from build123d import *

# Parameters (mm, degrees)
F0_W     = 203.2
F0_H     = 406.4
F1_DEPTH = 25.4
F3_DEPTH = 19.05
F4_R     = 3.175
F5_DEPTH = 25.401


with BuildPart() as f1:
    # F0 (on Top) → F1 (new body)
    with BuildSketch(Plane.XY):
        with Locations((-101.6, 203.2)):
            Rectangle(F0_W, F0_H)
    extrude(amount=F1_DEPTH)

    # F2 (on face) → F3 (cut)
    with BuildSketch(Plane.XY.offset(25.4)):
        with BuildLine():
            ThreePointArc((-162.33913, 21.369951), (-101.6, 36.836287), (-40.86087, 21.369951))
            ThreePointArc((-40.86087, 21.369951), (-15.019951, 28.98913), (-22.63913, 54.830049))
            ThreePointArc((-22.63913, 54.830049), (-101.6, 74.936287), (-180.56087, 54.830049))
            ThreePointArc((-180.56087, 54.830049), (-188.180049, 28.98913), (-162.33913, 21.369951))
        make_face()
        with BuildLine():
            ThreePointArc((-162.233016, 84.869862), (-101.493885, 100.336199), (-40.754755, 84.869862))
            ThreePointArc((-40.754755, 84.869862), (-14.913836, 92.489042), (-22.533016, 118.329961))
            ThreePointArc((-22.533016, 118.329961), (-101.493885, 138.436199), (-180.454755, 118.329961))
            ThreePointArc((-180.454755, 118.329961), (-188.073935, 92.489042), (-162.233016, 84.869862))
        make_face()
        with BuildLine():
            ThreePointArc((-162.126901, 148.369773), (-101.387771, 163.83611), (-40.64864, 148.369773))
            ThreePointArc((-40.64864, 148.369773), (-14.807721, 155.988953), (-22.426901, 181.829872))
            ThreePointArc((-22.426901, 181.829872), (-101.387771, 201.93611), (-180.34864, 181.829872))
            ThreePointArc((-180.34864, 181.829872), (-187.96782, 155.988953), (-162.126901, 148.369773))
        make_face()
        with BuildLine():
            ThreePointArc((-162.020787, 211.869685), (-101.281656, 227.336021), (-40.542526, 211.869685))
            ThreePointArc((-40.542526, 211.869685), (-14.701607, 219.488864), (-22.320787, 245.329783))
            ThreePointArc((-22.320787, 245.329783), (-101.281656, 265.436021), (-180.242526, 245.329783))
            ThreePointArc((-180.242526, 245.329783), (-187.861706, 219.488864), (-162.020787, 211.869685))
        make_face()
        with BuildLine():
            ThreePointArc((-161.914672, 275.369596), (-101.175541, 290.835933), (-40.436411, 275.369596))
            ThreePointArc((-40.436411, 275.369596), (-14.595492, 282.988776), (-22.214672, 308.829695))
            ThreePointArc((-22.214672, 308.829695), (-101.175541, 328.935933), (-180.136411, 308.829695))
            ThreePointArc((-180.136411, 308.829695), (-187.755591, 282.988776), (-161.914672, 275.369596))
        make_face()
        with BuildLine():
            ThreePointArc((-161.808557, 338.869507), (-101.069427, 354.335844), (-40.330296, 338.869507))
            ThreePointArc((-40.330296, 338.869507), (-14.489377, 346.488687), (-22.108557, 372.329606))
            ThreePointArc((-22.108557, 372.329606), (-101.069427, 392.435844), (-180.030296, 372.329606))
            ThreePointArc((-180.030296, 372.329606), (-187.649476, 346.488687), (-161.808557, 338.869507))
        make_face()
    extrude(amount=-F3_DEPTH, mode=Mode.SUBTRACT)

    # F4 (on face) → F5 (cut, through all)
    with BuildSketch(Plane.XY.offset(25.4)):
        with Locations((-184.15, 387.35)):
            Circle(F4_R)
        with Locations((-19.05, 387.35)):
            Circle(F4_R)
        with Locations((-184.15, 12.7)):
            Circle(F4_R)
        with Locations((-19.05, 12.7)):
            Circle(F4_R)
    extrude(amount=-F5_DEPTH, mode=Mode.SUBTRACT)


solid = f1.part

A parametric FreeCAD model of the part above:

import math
import FreeCAD as App
import Part
import Sketcher

V = App.Vector
Q = App.Units.Quantity

doc = App.newDocument("Part")
body = doc.addObject("PartDesign::Body", "Body")

# Sketch on XY plane
sketch1 = body.newObject("Sketcher::SketchObject", "Sketch")
sketch1.AttachmentSupport = (doc.getObject("XY_Plane"), [""])
sketch1.MapMode = "FlatFace"
sketch1.addGeometry(Part.LineSegment(V(-203, 406, 0), V(-203, 0, 0)), False)
sketch1.addGeometry(Part.LineSegment(V(-203, 0, 0), V(0, 0, 0)), False)
sketch1.addGeometry(Part.LineSegment(V(0, 0, 0), V(0, 406, 0)), False)
sketch1.addGeometry(Part.LineSegment(V(0, 406, 0), V(-203, 406, 0)), False)
sketch1.addConstraint(Sketcher.Constraint("Coincident", 0, 2, 1, 1))
sketch1.addConstraint(Sketcher.Constraint("Coincident", 1, 2, 2, 1))
sketch1.addConstraint(Sketcher.Constraint("Coincident", 2, 2, 3, 1))
sketch1.addConstraint(Sketcher.Constraint("Coincident", 3, 2, 0, 1))
sketch1.addConstraint(Sketcher.Constraint("Vertical", 0))
sketch1.addConstraint(Sketcher.Constraint("Horizontal", 1))
sketch1.addConstraint(Sketcher.Constraint("Vertical", 2))
sketch1.addConstraint(Sketcher.Constraint("Horizontal", 3))
sketch1.addConstraint(Sketcher.Constraint("Coincident", 1, 2, -1, 1))
sketch1.addConstraint(Sketcher.Constraint("DistanceX", 1, 1, 1, 2, Q("8 in")))
sketch1.addConstraint(Sketcher.Constraint("DistanceY", 0, 2, 0, 1, Q("16 in")))
pad1 = body.newObject("PartDesign::Pad", "Pad")
pad1.Profile = sketch1
pad1.Length = Q("1 in")

# Sketch on XY plane
sketch2 = body.newObject("Sketcher::SketchObject", "Sketch001")
sketch2.AttachmentSupport = (doc.getObject("XY_Plane"), [""])
sketch2.MapMode = "FlatFace"
sketch2.AttachmentOffset = App.Placement(V(0, 0, 1 * 25.4), App.Rotation())
sketch2.addGeometry(Part.ArcOfCircle(Part.Circle(V(-102, -90, 0), V(0, 0, 1), 127), math.radians(61), math.radians(119)), False)
sketch2.addGeometry(Part.ArcOfCircle(Part.Circle(V(-32, 38, 0), V(0, 0, 1), 19), math.radians(-119), math.radians(61)), False)
sketch2.addGeometry(Part.ArcOfCircle(Part.Circle(V(-102, -90, 0), V(0, 0, 1), 165), math.radians(61), math.radians(119)), False)
sketch2.addGeometry(Part.ArcOfCircle(Part.Circle(V(-171, 38, 0), V(0, 0, 1), 19), math.radians(119), math.radians(299)), False)
sketch2.addGeometry(Part.ArcOfCircle(Part.Circle(V(-101, -27, 0), V(0, 0, 1), 127), math.radians(61), math.radians(119)), False)
sketch2.addGeometry(Part.ArcOfCircle(Part.Circle(V(-32, 102, 0), V(0, 0, 1), 19), math.radians(-119), math.radians(61)), False)
sketch2.addGeometry(Part.ArcOfCircle(Part.Circle(V(-101, -27, 0), V(0, 0, 1), 165), math.radians(61), math.radians(119)), False)
sketch2.addGeometry(Part.ArcOfCircle(Part.Circle(V(-171, 102, 0), V(0, 0, 1), 19), math.radians(119), math.radians(299)), False)
sketch2.addGeometry(Part.ArcOfCircle(Part.Circle(V(-101, 37, 0), V(0, 0, 1), 127), math.radians(61), math.radians(119)), False)
sketch2.addGeometry(Part.ArcOfCircle(Part.Circle(V(-32, 165, 0), V(0, 0, 1), 19), math.radians(-119), math.radians(61)), False)
sketch2.addGeometry(Part.ArcOfCircle(Part.Circle(V(-101, 37, 0), V(0, 0, 1), 165), math.radians(61), math.radians(119)), False)
sketch2.addGeometry(Part.ArcOfCircle(Part.Circle(V(-171, 165, 0), V(0, 0, 1), 19), math.radians(119), math.radians(299)), False)
sketch2.addGeometry(Part.ArcOfCircle(Part.Circle(V(-101, 100, 0), V(0, 0, 1), 127), math.radians(61), math.radians(119)), False)
sketch2.addGeometry(Part.ArcOfCircle(Part.Circle(V(-31, 229, 0), V(0, 0, 1), 19), math.radians(-119), math.radians(61)), False)
sketch2.addGeometry(Part.ArcOfCircle(Part.Circle(V(-101, 100, 0), V(0, 0, 1), 165), math.radians(61), math.radians(119)), False)
sketch2.addGeometry(Part.ArcOfCircle(Part.Circle(V(-171, 229, 0), V(0, 0, 1), 19), math.radians(119), math.radians(299)), False)
sketch2.addGeometry(Part.ArcOfCircle(Part.Circle(V(-101, 164, 0), V(0, 0, 1), 127), math.radians(61), math.radians(119)), False)
sketch2.addGeometry(Part.ArcOfCircle(Part.Circle(V(-31, 292, 0), V(0, 0, 1), 19), math.radians(-119), math.radians(61)), False)
sketch2.addGeometry(Part.ArcOfCircle(Part.Circle(V(-101, 164, 0), V(0, 0, 1), 165), math.radians(61), math.radians(119)), False)
sketch2.addGeometry(Part.ArcOfCircle(Part.Circle(V(-171, 292, 0), V(0, 0, 1), 19), math.radians(119), math.radians(299)), False)
sketch2.addGeometry(Part.ArcOfCircle(Part.Circle(V(-101, 227, 0), V(0, 0, 1), 127), math.radians(61), math.radians(119)), False)
sketch2.addGeometry(Part.ArcOfCircle(Part.Circle(V(-31, 356, 0), V(0, 0, 1), 19), math.radians(-119), math.radians(61)), False)
sketch2.addGeometry(Part.ArcOfCircle(Part.Circle(V(-101, 227, 0), V(0, 0, 1), 165), math.radians(61), math.radians(119)), False)
sketch2.addGeometry(Part.ArcOfCircle(Part.Circle(V(-171, 356, 0), V(0, 0, 1), 19), math.radians(119), math.radians(299)), False)
sketch2.addConstraint(Sketcher.Constraint("Tangent", 0, 1, 1, 1))
sketch2.addConstraint(Sketcher.Constraint("Tangent", 1, 2, 2, 1))
sketch2.addConstraint(Sketcher.Constraint("Tangent", 2, 2, 3, 1))
sketch2.addConstraint(Sketcher.Constraint("Tangent", 3, 2, 0, 2))
sketch2.addConstraint(Sketcher.Constraint("Tangent", 4, 1, 5, 1))
sketch2.addConstraint(Sketcher.Constraint("Tangent", 5, 2, 6, 1))
sketch2.addConstraint(Sketcher.Constraint("Tangent", 6, 2, 7, 1))
sketch2.addConstraint(Sketcher.Constraint("Tangent", 7, 2, 4, 2))
sketch2.addConstraint(Sketcher.Constraint("Tangent", 8, 1, 9, 1))
sketch2.addConstraint(Sketcher.Constraint("Tangent", 9, 2, 10, 1))
sketch2.addConstraint(Sketcher.Constraint("Tangent", 10, 2, 11, 1))
sketch2.addConstraint(Sketcher.Constraint("Tangent", 11, 2, 8, 2))
sketch2.addConstraint(Sketcher.Constraint("Tangent", 12, 1, 13, 1))
sketch2.addConstraint(Sketcher.Constraint("Tangent", 13, 2, 14, 1))
sketch2.addConstraint(Sketcher.Constraint("Tangent", 14, 2, 15, 1))
sketch2.addConstraint(Sketcher.Constraint("Tangent", 15, 2, 12, 2))
sketch2.addConstraint(Sketcher.Constraint("Tangent", 16, 1, 17, 1))
sketch2.addConstraint(Sketcher.Constraint("Tangent", 17, 2, 18, 1))
sketch2.addConstraint(Sketcher.Constraint("Tangent", 18, 2, 19, 1))
sketch2.addConstraint(Sketcher.Constraint("Tangent", 19, 2, 16, 2))
sketch2.addConstraint(Sketcher.Constraint("Tangent", 20, 1, 21, 1))
sketch2.addConstraint(Sketcher.Constraint("Tangent", 21, 2, 22, 1))
sketch2.addConstraint(Sketcher.Constraint("Tangent", 22, 2, 23, 1))
sketch2.addConstraint(Sketcher.Constraint("Tangent", 23, 2, 20, 2))
sketch2.addConstraint(Sketcher.Constraint("Coincident", 2, 3, 0, 3))
sketch2.addConstraint(Sketcher.Constraint("Coincident", 6, 3, 4, 3))
sketch2.addConstraint(Sketcher.Constraint("Coincident", 10, 3, 8, 3))
sketch2.addConstraint(Sketcher.Constraint("Coincident", 14, 3, 12, 3))
sketch2.addConstraint(Sketcher.Constraint("Coincident", 18, 3, 16, 3))
sketch2.addConstraint(Sketcher.Constraint("Coincident", 22, 3, 20, 3))
sketch2.addConstraint(Sketcher.Constraint("Equal", 3, 5))
sketch2.addConstraint(Sketcher.Constraint("Equal", 2, 6))
sketch2.addConstraint(Sketcher.Constraint("Equal", 4, 8))
sketch2.addConstraint(Sketcher.Constraint("Equal", 7, 9))
sketch2.addConstraint(Sketcher.Constraint("Equal", 0, 12))
sketch2.addConstraint(Sketcher.Constraint("Equal", 11, 13))
sketch2.addConstraint(Sketcher.Constraint("Equal", 8, 16))
sketch2.addConstraint(Sketcher.Constraint("Equal", 15, 17))
sketch2.addConstraint(Sketcher.Constraint("Equal", 16, 20))
sketch2.addConstraint(Sketcher.Constraint("Equal", 19, 21))
sketch2.addConstraint(Sketcher.Constraint("Horizontal", 1, 3, 3, 3))
sketch2.addConstraint(Sketcher.Constraint("Horizontal", 5, 3, 7, 3))
sketch2.addConstraint(Sketcher.Constraint("Horizontal", 9, 3, 11, 3))
sketch2.addConstraint(Sketcher.Constraint("Horizontal", 13, 3, 15, 3))
sketch2.addConstraint(Sketcher.Constraint("Horizontal", 17, 3, 19, 3))
sketch2.addConstraint(Sketcher.Constraint("Horizontal", 21, 3, 23, 3))
sketch2.addConstraint(Sketcher.Constraint("Radius", 0, Q("5.0000002 in")))
sketch2.addConstraint(Sketcher.Constraint("Radius", 2, Q("6.5 in")))
sketch2.addConstraint(Sketcher.Constraint("DistanceX", 0, 3, -1, 1, Q("4 in")))
sketch2.addConstraint(Sketcher.Constraint("DistanceY", -1, 1, 1, 3, Q("1.5 in")))
sketch2.addConstraint(Sketcher.Constraint("DistanceX", 3, 3, 1, 3, Q("5.5 in")))
sketch2.addConstraint(Sketcher.Constraint("DistanceX", 7, 3, 5, 3, Q("5.5 in")))
sketch2.addConstraint(Sketcher.Constraint("DistanceX", 11, 3, 9, 3, Q("5.5 in")))
sketch2.addConstraint(Sketcher.Constraint("DistanceX", 15, 3, 13, 3, Q("5.5 in")))
sketch2.addConstraint(Sketcher.Constraint("DistanceX", 19, 3, 17, 3, Q("5.5 in")))
sketch2.addConstraint(Sketcher.Constraint("DistanceX", 23, 3, 21, 3, Q("5.5 in")))
sketch2.addConstraint(Sketcher.Constraint("DistanceY", 4, 3, -1, 1, 26.6638))
sketch2.addConstraint(Sketcher.Constraint("DistanceX", 9, 2, -1, 1, 22.426901))
sketch2.addConstraint(Sketcher.Constraint("DistanceY", 8, 3, 5, 3, 64.7638))
sketch2.addConstraint(Sketcher.Constraint("DistanceX", 12, 3, 4, 1, 60.526902))
sketch2.addConstraint(Sketcher.Constraint("DistanceX", 16, 3, 8, 1, 60.526902))
sketch2.addConstraint(Sketcher.Constraint("DistanceX", 20, 3, 12, 1, 60.526901))
sketch2.addConstraint(Sketcher.Constraint("DistanceY", 9, 3, 13, 3, 63.499911))
sketch2.addConstraint(Sketcher.Constraint("DistanceY", 14, 3, 16, 3, 63.499912))
sketch2.addConstraint(Sketcher.Constraint("DistanceY", 18, 3, 20, 3, 63.499911))
sketch2.addConstraint(Sketcher.Constraint("DistanceX", 4, 3, -1, 1, 101.493886))
pocket1 = body.newObject("PartDesign::Pocket", "Pocket")
pocket1.Profile = sketch2
pocket1.Length = Q("0.75 in")

# Sketch on XY plane
sketch3 = body.newObject("Sketcher::SketchObject", "Sketch002")
sketch3.AttachmentSupport = (doc.getObject("XY_Plane"), [""])
sketch3.MapMode = "FlatFace"
sketch3.AttachmentOffset = App.Placement(V(0, 0, 1 * 25.4), App.Rotation())
sketch3.addGeometry(Part.Circle(V(-184.2, 387.4, 0), V(0, 0, 1), 3.2), False)
sketch3.addGeometry(Part.Circle(V(-19.1, 387.4, 0), V(0, 0, 1), 3.2), False)
sketch3.addGeometry(Part.Circle(V(-184.2, 12.7, 0), V(0, 0, 1), 3.2), False)
sketch3.addGeometry(Part.Circle(V(-19.1, 12.7, 0), V(0, 0, 1), 3.2), False)
sketch3.addConstraint(Sketcher.Constraint("Equal", 0, 1))
sketch3.addConstraint(Sketcher.Constraint("Equal", 1, 2))
sketch3.addConstraint(Sketcher.Constraint("Equal", 2, 3))
sketch3.addConstraint(Sketcher.Constraint("Horizontal", 0, 3, 1, 3))
sketch3.addConstraint(Sketcher.Constraint("Horizontal", 2, 3, 3, 3))
sketch3.addConstraint(Sketcher.Constraint("Vertical", 0, 3, 2, 3))
sketch3.addConstraint(Sketcher.Constraint("Vertical", 1, 3, 3, 3))
sketch3.addConstraint(Sketcher.Constraint("Diameter", 0, Q("0.25 in")))
sketch3.addConstraint(Sketcher.Constraint("DistanceY", -1, 1, 2, 3, Q("0.5 in")))
sketch3.addConstraint(Sketcher.Constraint("DistanceX", 0, 3, 1, 3, Q("6.5 in")))
sketch3.addConstraint(Sketcher.Constraint("DistanceX", 0, 3, -1, 1, Q("7.25 in")))
sketch3.addConstraint(Sketcher.Constraint("DistanceY", -1, 1, 0, 3, Q("15.25 in")))
pocket2 = body.newObject("PartDesign::Pocket", "Pocket001")
pocket2.Profile = sketch3
pocket2.Type = "ThroughAll"

doc.recompute()
